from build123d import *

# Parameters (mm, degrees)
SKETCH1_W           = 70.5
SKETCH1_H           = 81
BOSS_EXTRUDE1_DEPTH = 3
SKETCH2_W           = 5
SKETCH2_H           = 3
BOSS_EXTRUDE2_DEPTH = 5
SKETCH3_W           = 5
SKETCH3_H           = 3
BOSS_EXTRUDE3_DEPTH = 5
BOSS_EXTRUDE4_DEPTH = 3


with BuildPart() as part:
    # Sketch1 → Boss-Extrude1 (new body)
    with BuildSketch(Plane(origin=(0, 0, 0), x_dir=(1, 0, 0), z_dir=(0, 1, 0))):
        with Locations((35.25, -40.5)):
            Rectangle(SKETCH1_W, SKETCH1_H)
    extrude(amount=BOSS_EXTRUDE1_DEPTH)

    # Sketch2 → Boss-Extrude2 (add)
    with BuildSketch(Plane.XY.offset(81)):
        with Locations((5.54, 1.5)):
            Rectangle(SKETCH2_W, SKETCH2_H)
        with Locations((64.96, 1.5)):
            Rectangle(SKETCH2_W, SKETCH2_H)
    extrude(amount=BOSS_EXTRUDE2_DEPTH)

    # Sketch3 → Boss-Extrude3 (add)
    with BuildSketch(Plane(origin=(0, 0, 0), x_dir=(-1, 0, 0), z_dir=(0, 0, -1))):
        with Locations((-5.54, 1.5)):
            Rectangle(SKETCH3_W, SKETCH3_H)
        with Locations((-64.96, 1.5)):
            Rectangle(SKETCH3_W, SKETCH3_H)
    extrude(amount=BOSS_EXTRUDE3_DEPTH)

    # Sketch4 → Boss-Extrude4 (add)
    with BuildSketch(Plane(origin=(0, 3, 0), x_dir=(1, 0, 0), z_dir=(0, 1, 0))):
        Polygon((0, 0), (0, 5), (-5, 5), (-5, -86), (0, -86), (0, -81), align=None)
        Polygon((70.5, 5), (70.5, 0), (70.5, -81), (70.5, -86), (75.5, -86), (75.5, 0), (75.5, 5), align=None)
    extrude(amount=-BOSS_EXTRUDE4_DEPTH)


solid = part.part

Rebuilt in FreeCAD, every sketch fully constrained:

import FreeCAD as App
import Part
import Sketcher

V = App.Vector
Q = App.Units.Quantity

doc = App.newDocument("Part")
params = doc.addObject("Spreadsheet::Sheet", "Params")
for row, (alias, value) in enumerate([
    ("sketch1_height", "81 mm"),
    ("sketch1_width", "70.5 mm"),
    ("pad1_length", "3 mm"),
    ("sketch2_width", "5 mm"),
    ("sketch2_height", "3 mm"),
    ("pad2_length", "5 mm"),
    ("sketch3_width", "5 mm"),
    ("sketch3_height", "3 mm"),
    ("pad3_length", "5 mm"),
    ("sketch4_width", "5 mm"),
    ("sketch4_height", "91 mm"),
    ("pad4_length", "3 mm"),
], start=1):
    params.set(f"A{row}", alias)
    params.set(f"B{row}", "=" + value)
    params.setAlias(f"B{row}", alias)

body = doc.addObject("PartDesign::Body", "Body")

sketch1 = body.newObject("Sketcher::SketchObject", "Sketch")
sketch1.AttachmentSupport = (doc.getObject("XZ_Plane"), [""])
sketch1.MapMode = "FlatFace"
sketch1.addGeometry(Part.LineSegment(V(0, 0, 0), V(0, 81, 0)), False)
sketch1.addGeometry(Part.LineSegment(V(0, 81, 0), V(70, 81, 0)), False)
sketch1.addGeometry(Part.LineSegment(V(70, 81, 0), V(70, 0, 0)), False)
sketch1.addGeometry(Part.LineSegment(V(70, 0, 0), V(0, 0, 0)), False)
sketch1.addConstraint(Sketcher.Constraint("Coincident", 0, 2, 1, 1))
sketch1.addConstraint(Sketcher.Constraint("Coincident", 1, 2, 2, 1))
sketch1.addConstraint(Sketcher.Constraint("Coincident", 2, 2, 3, 1))
sketch1.addConstraint(Sketcher.Constraint("Coincident", 3, 2, 0, 1))
sketch1.addConstraint(Sketcher.Constraint("Vertical", 0))
sketch1.addConstraint(Sketcher.Constraint("Horizontal", 1))
sketch1.addConstraint(Sketcher.Constraint("Vertical", 2))
sketch1.addConstraint(Sketcher.Constraint("Horizontal", 3))
sketch1.addConstraint(Sketcher.Constraint("Coincident", 3, 2, -1, 1))
sketch1.addConstraint(Sketcher.Constraint("DistanceY", 0, 1, 0, 2, Q("81 mm")))
sketch1.addConstraint(Sketcher.Constraint("DistanceX", 1, 1, 1, 2, Q("70.5 mm")))
sketch1.setExpression("Constraints[9]", "Params.sketch1_height")
sketch1.setExpression("Constraints[10]", "Params.sketch1_width")
pad1 = body.newObject("PartDesign::Pad", "Pad")
pad1.Profile = sketch1
pad1.setExpression("Length", "Params.pad1_length")
pad1.Reversed = True

sketch2 = body.newObject("Sketcher::SketchObject", "Sketch001")
sketch2.AttachmentSupport = (doc.getObject("XY_Plane"), [""])
sketch2.MapMode = "FlatFace"
sketch2.AttachmentOffset = App.Placement(V(0, 0, 81), App.Rotation())
sketch2.addGeometry(Part.LineSegment(V(3, 3, 0), V(3, 0, 0)), False)
sketch2.addGeometry(Part.LineSegment(V(3, 0, 0), V(8, 0, 0)), False)
sketch2.addGeometry(Part.LineSegment(V(8, 0, 0), V(8, 3, 0)), False)
sketch2.addGeometry(Part.LineSegment(V(8, 3, 0), V(3, 3, 0)), False)
sketch2.addGeometry(Part.LineSegment(V(62.5, 3, 0), V(62.5, 0, 0)), False)
sketch2.addGeometry(Part.LineSegment(V(62.5, 0, 0), V(67.5, 0, 0)), False)
sketch2.addGeometry(Part.LineSegment(V(67.5, 0, 0), V(67.5, 3, 0)), False)
sketch2.addGeometry(Part.LineSegment(V(67.5, 3, 0), V(62.5, 3, 0)), False)
sketch2.addConstraint(Sketcher.Constraint("Coincident", 0, 2, 1, 1))
sketch2.addConstraint(Sketcher.Constraint("Coincident", 1, 2, 2, 1))
sketch2.addConstraint(Sketcher.Constraint("Coincident", 2, 2, 3, 1))
sketch2.addConstraint(Sketcher.Constraint("Coincident", 3, 2, 0, 1))
sketch2.addConstraint(Sketcher.Constraint("Coincident", 4, 2, 5, 1))
sketch2.addConstraint(Sketcher.Constraint("Coincident", 5, 2, 6, 1))
sketch2.addConstraint(Sketcher.Constraint("Coincident", 6, 2, 7, 1))
sketch2.addConstraint(Sketcher.Constraint("Coincident", 7, 2, 4, 1))
sketch2.addConstraint(Sketcher.Constraint("Vertical", 0))
sketch2.addConstraint(Sketcher.Constraint("Horizontal", 1))
sketch2.addConstraint(Sketcher.Constraint("Vertical", 2))
sketch2.addConstraint(Sketcher.Constraint("Horizontal", 3))
sketch2.addConstraint(Sketcher.Constraint("Vertical", 4))
sketch2.addConstraint(Sketcher.Constraint("Horizontal", 5))
sketch2.addConstraint(Sketcher.Constraint("Vertical", 6))
sketch2.addConstraint(Sketcher.Constraint("Horizontal", 7))
sketch2.addConstraint(Sketcher.Constraint("PointOnObject", 0, 2, -1))
sketch2.addConstraint(Sketcher.Constraint("PointOnObject", 4, 2, -1))
sketch2.addConstraint(Sketcher.Constraint("Horizontal", 3, 2, 6, 2))
sketch2.addConstraint(Sketcher.Constraint("Equal", 3, 5))
sketch2.addConstraint(Sketcher.Constraint("DistanceX", 1, 1, 1, 2, Q("5 mm")))
sketch2.addConstraint(Sketcher.Constraint("DistanceY", 0, 2, 0, 1, Q("3 mm")))
sketch2.addConstraint(Sketcher.Constraint("DistanceX", -1, 1, 0, 2, Q("3.04 mm")))
sketch2.addConstraint(Sketcher.Constraint("DistanceX", -1, 1, 4, 2, Q("62.46 mm")))
sketch2.setExpression("Constraints[20]", "Params.sketch2_width")
sketch2.setExpression("Constraints[21]", "Params.sketch2_height")
pad2 = body.newObject("PartDesign::Pad", "Pad001")
pad2.Profile = sketch2
pad2.setExpression("Length", "Params.pad2_length")

sketch3 = body.newObject("Sketcher::SketchObject", "Sketch002")
sketch3.AttachmentSupport = (doc.getObject("XY_Plane"), [""])
sketch3.MapMode = "FlatFace"
sketch3.addGeometry(Part.LineSegment(V(8, 3, 0), V(8, 0, 0)), False)
sketch3.addGeometry(Part.LineSegment(V(8, 0, 0), V(3, 0, 0)), False)
sketch3.addGeometry(Part.LineSegment(V(3, 0, 0), V(3, 3, 0)), False)
sketch3.addGeometry(Part.LineSegment(V(3, 3, 0), V(8, 3, 0)), False)
sketch3.addGeometry(Part.LineSegment(V(67.5, 3, 0), V(67.5, 0, 0)), False)
sketch3.addGeometry(Part.LineSegment(V(67.5, 0, 0), V(62.5, 0, 0)), False)
sketch3.addGeometry(Part.LineSegment(V(62.5, 0, 0), V(62.5, 3, 0)), False)
sketch3.addGeometry(Part.LineSegment(V(62.5, 3, 0), V(67.5, 3, 0)), False)
sketch3.addConstraint(Sketcher.Constraint("Coincident", 0, 2, 1, 1))
sketch3.addConstraint(Sketcher.Constraint("Coincident", 1, 2, 2, 1))
sketch3.addConstraint(Sketcher.Constraint("Coincident", 2, 2, 3, 1))
sketch3.addConstraint(Sketcher.Constraint("Coincident", 3, 2, 0, 1))
sketch3.addConstraint(Sketcher.Constraint("Coincident", 4, 2, 5, 1))
sketch3.addConstraint(Sketcher.Constraint("Coincident", 5, 2, 6, 1))
sketch3.addConstraint(Sketcher.Constraint("Coincident", 6, 2, 7, 1))
sketch3.addConstraint(Sketcher.Constraint("Coincident", 7, 2, 4, 1))
sketch3.addConstraint(Sketcher.Constraint("Vertical", 0))
sketch3.addConstraint(Sketcher.Constraint("Horizontal", 1))
sketch3.addConstraint(Sketcher.Constraint("Vertical", 2))
sketch3.addConstraint(Sketcher.Constraint("Horizontal", 3))
sketch3.addConstraint(Sketcher.Constraint("Vertical", 4))
sketch3.addConstraint(Sketcher.Constraint("Horizontal", 5))
sketch3.addConstraint(Sketcher.Constraint("Vertical", 6))
sketch3.addConstraint(Sketcher.Constraint("Horizontal", 7))
sketch3.addConstraint(Sketcher.Constraint("PointOnObject", 0, 2, -1))
sketch3.addConstraint(Sketcher.Constraint("PointOnObject", 4, 2, -1))
sketch3.addConstraint(Sketcher.Constraint("Horizontal", 3, 2, 6, 2))
sketch3.addConstraint(Sketcher.Constraint("Equal", 3, 5))
sketch3.addConstraint(Sketcher.Constraint("DistanceX", 1, 2, 1, 1, Q("5 mm")))
sketch3.addConstraint(Sketcher.Constraint("DistanceY", 0, 2, 0, 1, Q("3 mm")))
sketch3.addConstraint(Sketcher.Constraint("DistanceX", -1, 1, 0, 2, Q("8.04 mm")))
sketch3.addConstraint(Sketcher.Constraint("DistanceX", -1, 1, 4, 2, Q("67.46 mm")))
sketch3.setExpression("Constraints[20]", "Params.sketch3_width")
sketch3.setExpression("Constraints[21]", "Params.sketch3_height")
pad3 = body.newObject("PartDesign::Pad", "Pad002")
pad3.Profile = sketch3
pad3.setExpression("Length", "Params.pad3_length")
pad3.Reversed = True

sketch4 = body.newObject("Sketcher::SketchObject", "Sketch003")
sketch4.AttachmentSupport = (doc.getObject("XZ_Plane"), [""])
sketch4.MapMode = "FlatFace"
sketch4.AttachmentOffset = App.Placement(V(0, 0, -3), App.Rotation())
sketch4.addGeometry(Part.LineSegment(V(0, -5, 0), V(-5, -5, 0)), False)
sketch4.addGeometry(Part.LineSegment(V(-5, -5, 0), V(-5, 86, 0)), False)
sketch4.addGeometry(Part.LineSegment(V(-5, 86, 0), V(0, 86, 0)), False)
sketch4.addGeometry(Part.LineSegment(V(0, 86, 0), V(0, -5, 0)), False)
sketch4.addGeometry(Part.LineSegment(V(70, -5, 0), V(70, 86, 0)), False)
sketch4.addGeometry(Part.LineSegment(V(70, 86, 0), V(76, 86, 0)), False)
sketch4.addGeometry(Part.LineSegment(V(76, 86, 0), V(76, -5, 0)), False)
sketch4.addGeometry(Part.LineSegment(V(76, -5, 0), V(70, -5, 0)), False)
sketch4.addConstraint(Sketcher.Constraint("Coincident", 0, 2, 1, 1))
sketch4.addConstraint(Sketcher.Constraint("Coincident", 1, 2, 2, 1))
sketch4.addConstraint(Sketcher.Constraint("Coincident", 2, 2, 3, 1))
sketch4.addConstraint(Sketcher.Constraint("Coincident", 3, 2, 0, 1))
sketch4.addConstraint(Sketcher.Constraint("Coincident", 4, 2, 5, 1))
sketch4.addConstraint(Sketcher.Constraint("Coincident", 5, 2, 6, 1))
sketch4.addConstraint(Sketcher.Constraint("Coincident", 6, 2, 7, 1))
sketch4.addConstraint(Sketcher.Constraint("Coincident", 7, 2, 4, 1))
sketch4.addConstraint(Sketcher.Constraint("Horizontal", 0))
sketch4.addConstraint(Sketcher.Constraint("Vertical", 1))
sketch4.addConstraint(Sketcher.Constraint("Horizontal", 2))
sketch4.addConstraint(Sketcher.Constraint("Vertical", 3))
sketch4.addConstraint(Sketcher.Constraint("Vertical", 4))
sketch4.addConstraint(Sketcher.Constraint("Horizontal", 5))
sketch4.addConstraint(Sketcher.Constraint("Vertical", 6))
sketch4.addConstraint(Sketcher.Constraint("Horizontal", 7))
sketch4.addConstraint(Sketcher.Constraint("PointOnObject", 2, 2, -2))
sketch4.addConstraint(Sketcher.Constraint("Horizontal", 2, 2, 4, 2))
sketch4.addConstraint(Sketcher.Constraint("Horizontal", 3, 2, 6, 2))
sketch4.addConstraint(Sketcher.Constraint("Equal", 2, 5))
sketch4.addConstraint(Sketcher.Constraint("DistanceX", 0, 2, 0, 1, Q("5 mm")))
sketch4.addConstraint(Sketcher.Constraint("DistanceY", 1, 1, 1, 2, Q("91 mm")))
sketch4.addConstraint(Sketcher.Constraint("DistanceY", 0, 2, -1, 1, Q("5 mm")))
sketch4.addConstraint(Sketcher.Constraint("DistanceX", -1, 1, 4, 2, Q("70.5 mm")))
sketch4.setExpression("Constraints[20]", "Params.sketch4_width")
sketch4.setExpression("Constraints[21]", "Params.sketch4_height")
pad4 = body.newObject("PartDesign::Pad", "Pad003")
pad4.Profile = sketch4
pad4.setExpression("Length", "Params.pad4_length")

doc.recompute()
